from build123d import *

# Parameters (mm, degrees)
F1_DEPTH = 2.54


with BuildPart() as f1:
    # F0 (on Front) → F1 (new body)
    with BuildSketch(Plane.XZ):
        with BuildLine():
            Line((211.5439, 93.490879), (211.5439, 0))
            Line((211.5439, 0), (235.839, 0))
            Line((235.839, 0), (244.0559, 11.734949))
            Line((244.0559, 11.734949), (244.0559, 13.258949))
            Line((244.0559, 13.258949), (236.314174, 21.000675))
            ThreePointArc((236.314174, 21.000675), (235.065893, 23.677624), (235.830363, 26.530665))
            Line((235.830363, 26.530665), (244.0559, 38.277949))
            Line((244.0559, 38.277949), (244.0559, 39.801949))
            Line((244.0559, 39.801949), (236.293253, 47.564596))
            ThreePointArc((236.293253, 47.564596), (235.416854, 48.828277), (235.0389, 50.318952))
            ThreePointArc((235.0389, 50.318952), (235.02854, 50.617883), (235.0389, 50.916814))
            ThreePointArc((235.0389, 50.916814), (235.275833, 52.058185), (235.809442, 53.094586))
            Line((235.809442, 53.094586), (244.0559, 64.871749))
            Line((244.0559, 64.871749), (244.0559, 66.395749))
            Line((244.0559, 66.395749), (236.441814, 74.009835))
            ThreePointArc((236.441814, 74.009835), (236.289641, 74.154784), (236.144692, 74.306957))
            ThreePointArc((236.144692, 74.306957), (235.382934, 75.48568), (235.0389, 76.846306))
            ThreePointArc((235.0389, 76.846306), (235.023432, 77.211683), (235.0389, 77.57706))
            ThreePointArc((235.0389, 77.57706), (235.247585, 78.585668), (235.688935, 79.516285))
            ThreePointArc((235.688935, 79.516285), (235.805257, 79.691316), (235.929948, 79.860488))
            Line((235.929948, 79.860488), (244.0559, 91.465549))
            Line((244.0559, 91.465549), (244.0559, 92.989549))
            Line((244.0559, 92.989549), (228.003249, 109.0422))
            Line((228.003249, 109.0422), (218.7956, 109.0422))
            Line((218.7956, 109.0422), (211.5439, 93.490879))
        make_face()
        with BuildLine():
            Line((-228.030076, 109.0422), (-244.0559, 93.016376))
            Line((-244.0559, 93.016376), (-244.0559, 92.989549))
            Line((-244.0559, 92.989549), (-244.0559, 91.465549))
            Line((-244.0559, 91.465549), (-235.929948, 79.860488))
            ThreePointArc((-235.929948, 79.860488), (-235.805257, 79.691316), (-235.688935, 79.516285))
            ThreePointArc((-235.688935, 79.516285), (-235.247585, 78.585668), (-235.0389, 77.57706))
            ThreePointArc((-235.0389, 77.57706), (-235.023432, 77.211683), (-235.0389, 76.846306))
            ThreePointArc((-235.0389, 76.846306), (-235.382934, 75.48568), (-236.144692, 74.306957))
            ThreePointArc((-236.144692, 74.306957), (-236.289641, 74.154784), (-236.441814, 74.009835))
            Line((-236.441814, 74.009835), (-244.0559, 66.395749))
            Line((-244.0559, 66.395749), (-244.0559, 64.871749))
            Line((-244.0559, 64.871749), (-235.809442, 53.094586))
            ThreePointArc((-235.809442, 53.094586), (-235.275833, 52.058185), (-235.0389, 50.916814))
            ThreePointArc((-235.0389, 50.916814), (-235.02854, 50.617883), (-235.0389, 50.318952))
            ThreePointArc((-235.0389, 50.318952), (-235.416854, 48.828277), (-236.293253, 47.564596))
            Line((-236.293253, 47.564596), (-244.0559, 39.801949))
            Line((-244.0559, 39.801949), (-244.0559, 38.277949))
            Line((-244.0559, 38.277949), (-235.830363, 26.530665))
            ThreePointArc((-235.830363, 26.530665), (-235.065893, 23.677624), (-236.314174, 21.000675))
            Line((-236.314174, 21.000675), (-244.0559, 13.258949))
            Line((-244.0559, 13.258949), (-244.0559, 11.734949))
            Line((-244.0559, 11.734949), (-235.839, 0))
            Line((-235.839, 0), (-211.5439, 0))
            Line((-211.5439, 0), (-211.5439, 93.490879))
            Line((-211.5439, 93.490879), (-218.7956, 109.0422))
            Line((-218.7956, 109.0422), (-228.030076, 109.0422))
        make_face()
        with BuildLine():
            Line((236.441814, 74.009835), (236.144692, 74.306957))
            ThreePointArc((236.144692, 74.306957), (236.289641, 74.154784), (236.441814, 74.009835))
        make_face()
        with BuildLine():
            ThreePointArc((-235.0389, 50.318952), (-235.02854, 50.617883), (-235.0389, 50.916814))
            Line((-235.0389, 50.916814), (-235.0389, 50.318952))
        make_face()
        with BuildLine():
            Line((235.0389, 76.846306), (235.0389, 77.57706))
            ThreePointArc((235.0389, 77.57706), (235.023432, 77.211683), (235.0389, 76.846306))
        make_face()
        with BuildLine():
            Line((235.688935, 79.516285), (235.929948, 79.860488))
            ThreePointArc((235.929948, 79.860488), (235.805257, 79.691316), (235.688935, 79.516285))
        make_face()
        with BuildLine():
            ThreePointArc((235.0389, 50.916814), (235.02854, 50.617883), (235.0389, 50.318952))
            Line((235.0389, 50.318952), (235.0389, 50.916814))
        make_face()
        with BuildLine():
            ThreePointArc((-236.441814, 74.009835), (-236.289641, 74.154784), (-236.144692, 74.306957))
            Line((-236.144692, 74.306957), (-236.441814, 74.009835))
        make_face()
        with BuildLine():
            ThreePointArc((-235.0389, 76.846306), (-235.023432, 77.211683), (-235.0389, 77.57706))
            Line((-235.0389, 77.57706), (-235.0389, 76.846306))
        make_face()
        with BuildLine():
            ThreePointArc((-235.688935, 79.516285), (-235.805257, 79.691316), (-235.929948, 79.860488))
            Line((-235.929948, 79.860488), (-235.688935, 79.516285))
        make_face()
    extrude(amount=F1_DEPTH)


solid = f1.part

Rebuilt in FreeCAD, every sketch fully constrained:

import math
import FreeCAD as App
import Part
import Sketcher
from FreeCAD import Vector
Q = App.Units.Quantity

doc = App.newDocument("Part")
body = doc.addObject("PartDesign::Body", "Body")
body.AllowCompound = True

sketch1 = body.newObject("Sketcher::SketchObject", "Sketch")
sketch1.AttachmentSupport = (doc.getObject("XZ_Plane"), [""])
sketch1.MapMode = "FlatFace"
sketch1.addGeometry(Part.LineSegment(Vector(211.5439, 93.490879, 0), Vector(211.5439, 0, 0)), False)
sketch1.addGeometry(Part.LineSegment(Vector(211.5439, 0, 0), Vector(235.839, 0, 0)), False)
sketch1.addGeometry(Part.LineSegment(Vector(235.839, 0, 0), Vector(244.0559, 11.734949, 0)), False)
sketch1.addGeometry(Part.LineSegment(Vector(244.0559, 11.734949, 0), Vector(244.0559, 13.258949, 0)), False)
sketch1.addGeometry(Part.LineSegment(Vector(244.0559, 13.258949, 0), Vector(236.314174, 21.000675, 0)), False)
sketch1.addGeometry(Part.ArcOfCircle(Part.Circle(Vector(239.367463, 24.053962, 0), Vector(0, 0, 1), 4.318001), math.radians(145.000011), math.radians(224.999981)), False)
sketch1.addGeometry(Part.LineSegment(Vector(235.830363, 26.530665, 0), Vector(244.0559, 38.277949, 0)), False)
sketch1.addGeometry(Part.LineSegment(Vector(244.0559, 38.277949, 0), Vector(244.0559, 39.801949, 0)), False)
sketch1.addGeometry(Part.LineSegment(Vector(244.0559, 39.801949, 0), Vector(236.293253, 47.564596, 0)), False)
sketch1.addGeometry(Part.ArcOfCircle(Part.Circle(Vector(239.346542, 50.617884, 0), Vector(0, 0, 1), 4.318001), math.radians(-176.030287), math.radians(-135.000009)), False)
sketch1.addGeometry(Part.LineSegment(Vector(235.0389, 50.318952, 0), Vector(235.0389, 50.916814, 0)), False)
sketch1.addGeometry(Part.ArcOfCircle(Part.Circle(Vector(239.346527, 50.617887, 0), Vector(0, 0, 1), 4.317987), math.radians(144.999943), math.radians(176.030335)), False)
sketch1.addGeometry(Part.LineSegment(Vector(235.809442, 53.094586, 0), Vector(244.0559, 64.871749, 0)), False)
sketch1.addGeometry(Part.LineSegment(Vector(244.0559, 64.871749, 0), Vector(244.0559, 66.395749, 0)), False)
sketch1.addGeometry(Part.LineSegment(Vector(244.0559, 66.395749, 0), Vector(236.144692, 74.306957, 0)), False)
sketch1.addGeometry(Part.ArcOfCircle(Part.Circle(Vector(239.346549, 77.211687, 0), Vector(0, 0, 1), 4.323117), math.radians(-175.151699), math.radians(-137.785635)), False)
sketch1.addGeometry(Part.LineSegment(Vector(235.0389, 76.846306, 0), Vector(235.0389, 77.57706, 0)), False)
sketch1.addGeometry(Part.ArcOfCircle(Part.Circle(Vector(239.346528, 77.211688, 0), Vector(0, 0, 1), 4.323096), math.radians(147.785553), math.radians(175.151784)), False)
sketch1.addGeometry(Part.LineSegment(Vector(235.688935, 79.516285, 0), Vector(235.929948, 79.860488, 0)), False)
sketch1.addGeometry(Part.LineSegment(Vector(235.929948, 79.860488, 0), Vector(244.0559, 91.465549, 0)), False)
sketch1.addGeometry(Part.LineSegment(Vector(244.0559, 91.465549, 0), Vector(244.0559, 92.989549, 0)), False)
sketch1.addGeometry(Part.LineSegment(Vector(244.0559, 92.989549, 0), Vector(228.003249, 109.0422, 0)), False)
sketch1.addGeometry(Part.LineSegment(Vector(228.003249, 109.0422, 0), Vector(218.7956, 109.0422, 0)), False)
sketch1.addGeometry(Part.LineSegment(Vector(218.7956, 109.0422, 0), Vector(211.5439, 93.490879, 0)), False)
sketch1.addGeometry(Part.LineSegment(Vector(-228.030076, 109.0422, 0), Vector(-244.0559, 93.016376, 0)), False)
sketch1.addGeometry(Part.LineSegment(Vector(-244.0559, 93.016376, 0), Vector(-244.0559, 91.465549, 0)), False)
sketch1.addGeometry(Part.LineSegment(Vector(-244.0559, 91.465549, 0), Vector(-235.929948, 79.860488, 0)), False)
sketch1.addGeometry(Part.LineSegment(Vector(-235.929948, 79.860488, 0), Vector(-235.688935, 79.516285, 0)), False)
sketch1.addGeometry(Part.ArcOfCircle(Part.Circle(Vector(-239.346528, 77.211688, 0), Vector(0, 0, 1), 4.323096), math.radians(4.848216), math.radians(32.214447)), False)
sketch1.addGeometry(Part.LineSegment(Vector(-235.0389, 77.57706, 0), Vector(-235.0389, 76.846306, 0)), False)
sketch1.addGeometry(Part.ArcOfCircle(Part.Circle(Vector(-239.346549, 77.211687, 0), Vector(0, 0, 1), 4.323117), math.radians(-42.214365), math.radians(-4.848301)), False)
sketch1.addGeometry(Part.LineSegment(Vector(-236.144692, 74.306957, 0), Vector(-244.0559, 66.395749, 0)), False)
sketch1.addGeometry(Part.LineSegment(Vector(-244.0559, 66.395749, 0), Vector(-244.0559, 64.871749, 0)), False)
sketch1.addGeometry(Part.LineSegment(Vector(-244.0559, 64.871749, 0), Vector(-235.809442, 53.094586, 0)), False)
sketch1.addGeometry(Part.ArcOfCircle(Part.Circle(Vector(-239.346527, 50.617887, 0), Vector(0, 0, 1), 4.317987), math.radians(3.969665), math.radians(35.000057)), False)
sketch1.addGeometry(Part.LineSegment(Vector(-235.0389, 50.916814, 0), Vector(-235.0389, 50.318952, 0)), False)
sketch1.addGeometry(Part.ArcOfCircle(Part.Circle(Vector(-239.346542, 50.617884, 0), Vector(0, 0, 1), 4.318001), math.radians(-44.999991), math.radians(-3.969713)), False)
sketch1.addGeometry(Part.LineSegment(Vector(-236.293253, 47.564596, 0), Vector(-244.0559, 39.801949, 0)), False)
sketch1.addGeometry(Part.LineSegment(Vector(-244.0559, 39.801949, 0), Vector(-244.0559, 38.277949, 0)), False)
sketch1.addGeometry(Part.LineSegment(Vector(-244.0559, 38.277949, 0), Vector(-235.830363, 26.530665, 0)), False)
sketch1.addGeometry(Part.ArcOfCircle(Part.Circle(Vector(-239.367463, 24.053962, 0), Vector(0, 0, 1), 4.318001), math.radians(-44.999981), math.radians(34.999989)), False)
sketch1.addGeometry(Part.LineSegment(Vector(-236.314174, 21.000675, 0), Vector(-244.0559, 13.258949, 0)), False)
sketch1.addGeometry(Part.LineSegment(Vector(-244.0559, 13.258949, 0), Vector(-244.0559, 11.734949, 0)), False)
sketch1.addGeometry(Part.LineSegment(Vector(-244.0559, 11.734949, 0), Vector(-235.839, 0, 0)), False)
sketch1.addGeometry(Part.LineSegment(Vector(-235.839, 0, 0), Vector(-211.5439, 0, 0)), False)
sketch1.addGeometry(Part.LineSegment(Vector(-211.5439, 0, 0), Vector(-211.5439, 93.490879, 0)), False)
sketch1.addGeometry(Part.LineSegment(Vector(-211.5439, 93.490879, 0), Vector(-218.7956, 109.0422, 0)), False)
sketch1.addGeometry(Part.LineSegment(Vector(-218.7956, 109.0422, 0), Vector(-228.030076, 109.0422, 0)), False)
sketch1.addConstraint(Sketcher.Constraint("Coincident", 0, 2, 1, 1))
sketch1.addConstraint(Sketcher.Constraint("Coincident", 1, 2, 2, 1))
sketch1.addConstraint(Sketcher.Constraint("Coincident", 2, 2, 3, 1))
sketch1.addConstraint(Sketcher.Constraint("Coincident", 3, 2, 4, 1))
sketch1.addConstraint(Sketcher.Constraint("Tangent", 4, 2, 5, 2))
sketch1.addConstraint(Sketcher.Constraint("Tangent", 5, 1, 6, 1))
sketch1.addConstraint(Sketcher.Constraint("Coincident", 6, 2, 7, 1))
sketch1.addConstraint(Sketcher.Constraint("Coincident", 7, 2, 8, 1))
sketch1.addConstraint(Sketcher.Constraint("Tangent", 8, 2, 9, 2))
sketch1.addConstraint(Sketcher.Constraint("Coincident", 9, 1, 10, 1))
sketch1.addConstraint(Sketcher.Constraint("Coincident", 10, 2, 11, 2))
sketch1.addConstraint(Sketcher.Constraint("Tangent", 11, 1, 12, 1))
sketch1.addConstraint(Sketcher.Constraint("Coincident", 12, 2, 13, 1))
sketch1.addConstraint(Sketcher.Constraint("Coincident", 13, 2, 14, 1))
sketch1.addConstraint(Sketcher.Constraint("Coincident", 14, 2, 15, 2))
sketch1.addConstraint(Sketcher.Constraint("Coincident", 15, 1, 16, 1))
sketch1.addConstraint(Sketcher.Constraint("Coincident", 16, 2, 17, 2))
sketch1.addConstraint(Sketcher.Constraint("Coincident", 17, 1, 18, 1))
sketch1.addConstraint(Sketcher.Constraint("Coincident", 18, 2, 19, 1))
sketch1.addConstraint(Sketcher.Constraint("Coincident", 19, 2, 20, 1))
sketch1.addConstraint(Sketcher.Constraint("Coincident", 20, 2, 21, 1))
sketch1.addConstraint(Sketcher.Constraint("Coincident", 21, 2, 22, 1))
sketch1.addConstraint(Sketcher.Constraint("Coincident", 22, 2, 23, 1))
sketch1.addConstraint(Sketcher.Constraint("Coincident", 23, 2, 0, 1))
sketch1.addConstraint(Sketcher.Constraint("Coincident", 24, 2, 25, 1))
sketch1.addConstraint(Sketcher.Constraint("Coincident", 25, 2, 26, 1))
sketch1.addConstraint(Sketcher.Constraint("Coincident", 26, 2, 27, 1))
sketch1.addConstraint(Sketcher.Constraint("Coincident", 27, 2, 28, 2))
sketch1.addConstraint(Sketcher.Constraint("Coincident", 28, 1, 29, 1))
sketch1.addConstraint(Sketcher.Constraint("Coincident", 29, 2, 30, 2))
sketch1.addConstraint(Sketcher.Constraint("Coincident", 30, 1, 31, 1))
sketch1.addConstraint(Sketcher.Constraint("Coincident", 31, 2, 32, 1))
sketch1.addConstraint(Sketcher.Constraint("Coincident", 32, 2, 33, 1))
sketch1.addConstraint(Sketcher.Constraint("Tangent", 33, 2, 34, 2))
sketch1.addConstraint(Sketcher.Constraint("Coincident", 34, 1, 35, 1))
sketch1.addConstraint(Sketcher.Constraint("Coincident", 35, 2, 36, 2))
sketch1.addConstraint(Sketcher.Constraint("Tangent", 36, 1, 37, 1))
sketch1.addConstraint(Sketcher.Constraint("Coincident", 37, 2, 38, 1))
sketch1.addConstraint(Sketcher.Constraint("Coincident", 38, 2, 39, 1))
sketch1.addConstraint(Sketcher.Constraint("Tangent", 39, 2, 40, 2))
sketch1.addConstraint(Sketcher.Constraint("Tangent", 40, 1, 41, 1))
sketch1.addConstraint(Sketcher.Constraint("Coincident", 41, 2, 42, 1))
sketch1.addConstraint(Sketcher.Constraint("Coincident", 42, 2, 43, 1))
sketch1.addConstraint(Sketcher.Constraint("Coincident", 43, 2, 44, 1))
sketch1.addConstraint(Sketcher.Constraint("Coincident", 44, 2, 45, 1))
sketch1.addConstraint(Sketcher.Constraint("Coincident", 45, 2, 46, 1))
sketch1.addConstraint(Sketcher.Constraint("Coincident", 46, 2, 47, 1))
sketch1.addConstraint(Sketcher.Constraint("Coincident", 47, 2, 24, 1))
sketch1.addConstraint(Sketcher.Constraint("Vertical", 0))
sketch1.addConstraint(Sketcher.Constraint("Horizontal", 1))
sketch1.addConstraint(Sketcher.Constraint("Vertical", 3))
sketch1.addConstraint(Sketcher.Constraint("Vertical", 7))
sketch1.addConstraint(Sketcher.Constraint("Vertical", 10))
sketch1.addConstraint(Sketcher.Constraint("Vertical", 13))
sketch1.addConstraint(Sketcher.Constraint("Vertical", 16))
sketch1.addConstraint(Sketcher.Constraint("Vertical", 20))
sketch1.addConstraint(Sketcher.Constraint("Horizontal", 22))
sketch1.addConstraint(Sketcher.Constraint("Vertical", 25))
sketch1.addConstraint(Sketcher.Constraint("Vertical", 29))
sketch1.addConstraint(Sketcher.Constraint("Vertical", 32))
sketch1.addConstraint(Sketcher.Constraint("Vertical", 35))
sketch1.addConstraint(Sketcher.Constraint("Vertical", 38))
sketch1.addConstraint(Sketcher.Constraint("Vertical", 42))
sketch1.addConstraint(Sketcher.Constraint("Horizontal", 44))
sketch1.addConstraint(Sketcher.Constraint("Vertical", 45))
sketch1.addConstraint(Sketcher.Constraint("Horizontal", 47))
sketch1.addConstraint(Sketcher.Constraint("Equal", 5, 9))
sketch1.addConstraint(Sketcher.Constraint("Equal", 17, 28))
sketch1.addConstraint(Sketcher.Constraint("Equal", 15, 30))
sketch1.addConstraint(Sketcher.Constraint("Equal", 11, 34))
sketch1.addConstraint(Sketcher.Constraint("Equal", 9, 36))
sketch1.addConstraint(Sketcher.Constraint("Equal", 36, 40))
sketch1.addConstraint(Sketcher.Constraint("Symmetric", 1, 2, 43, 2, -1, 1))
sketch1.addConstraint(Sketcher.Constraint("Symmetric", 17, 3, 28, 3, -2))
sketch1.addConstraint(Sketcher.Constraint("Symmetric", 15, 3, 30, 3, -2))
sketch1.addConstraint(Sketcher.Constraint("Symmetric", 11, 3, 34, 3, -2))
sketch1.addConstraint(Sketcher.Constraint("Symmetric", 9, 3, 36, 3, -2))
sketch1.addConstraint(Sketcher.Constraint("Symmetric", 5, 3, 40, 3, -2))
sketch1.addConstraint(Sketcher.Constraint("Symmetric", 19, 2, 25, 2, -2))
sketch1.addConstraint(Sketcher.Constraint("Symmetric", 18, 2, 26, 2, -2))
sketch1.addConstraint(Sketcher.Constraint("Symmetric", 13, 2, 31, 2, -2))
sketch1.addConstraint(Sketcher.Constraint("Symmetric", 7, 2, 37, 2, -2))
sketch1.addConstraint(Sketcher.Constraint("Symmetric", 3, 2, 41, 2, -2))
sketch1.addConstraint(Sketcher.Constraint("Symmetric", 0, 2, 44, 2, -2))
sketch1.addConstraint(Sketcher.Constraint("Symmetric", 22, 2, 46, 2, -2))
sketch1.addConstraint(Sketcher.Constraint("Parallel", 2, 6))
sketch1.addConstraint(Sketcher.Constraint("Parallel", 4, 8))
sketch1.addConstraint(Sketcher.Constraint("Parallel", 6, 12))
sketch1.addConstraint(Sketcher.Constraint("Parallel", 8, 14))
sketch1.addConstraint(Sketcher.Constraint("Parallel", 12, 18))
sketch1.addConstraint(Sketcher.Constraint("Parallel", 18, 19))
sketch1.addConstraint(Sketcher.Constraint("Parallel", 14, 21))
sketch1.addConstraint(Sketcher.Constraint("Perpendicular", 21, 24))
sketch1.addConstraint(Sketcher.Constraint("Parallel", 26, 27))
sketch1.addConstraint(Sketcher.Constraint("Parallel", 24, 31))
sketch1.addConstraint(Sketcher.Constraint("Parallel", 27, 33))
sketch1.addConstraint(Sketcher.Constraint("Parallel", 31, 37))
sketch1.addConstraint(Sketcher.Constraint("Parallel", 33, 39))
sketch1.addConstraint(Sketcher.Constraint("Parallel", 39, 43))
sketch1.addConstraint(Sketcher.Constraint("Horizontal", 15, 3, 17, 3))
sketch1.addConstraint(Sketcher.Constraint("Horizontal", 16, 2, 28, 1))
sketch1.addConstraint(Sketcher.Constraint("Horizontal", 10, 2, 34, 1))
sketch1.addConstraint(Sketcher.Constraint("Horizontal", 23, 2, 45, 2))
sketch1.addConstraint(Sketcher.Constraint("Vertical", 11, 3, 17, 3))
sketch1.addConstraint(Sketcher.Constraint("Vertical", 3, 2, 6, 2))
sketch1.addConstraint(Sketcher.Constraint("Vertical", 7, 2, 12, 2))
sketch1.addConstraint(Sketcher.Constraint("Vertical", 10, 2, 15, 1))
sketch1.addConstraint(Sketcher.Constraint("Vertical", 13, 2, 19, 2))
sketch1.addConstraint(Sketcher.Constraint("Equal", 3, 7))
sketch1.addConstraint(Sketcher.Constraint("Equal", 7, 13))
sketch1.addConstraint(Sketcher.Constraint("Equal", 13, 20))
sketch1.addConstraint(Sketcher.Constraint("Radius", 5, Q("0.17 in")))
sketch1.addConstraint(Sketcher.Constraint("Angle", 2, Q("54.999999 deg")))
sketch1.addConstraint(Sketcher.Constraint("Angle", 23, Q("-115 deg")))
sketch1.addConstraint(Sketcher.Constraint("DistanceY", 3, 1, 3, 2, Q("0.06 in")))
sketch1.addConstraint(Sketcher.Constraint("DistanceX", 0, 2, 2, 2, Q("1.28 in")))
sketch1.addConstraint(Sketcher.Constraint("DistanceX", 1, 1, 1, 2, Q("0.9565 in")))
sketch1.addConstraint(Sketcher.Constraint("DistanceX", -1, 1, 1, 2, Q("9.285 in")))
sketch1.addConstraint(Sketcher.Constraint("DistanceY", -1, 1, 21, 2, Q("4.293 in")))
sketch1.addConstraint(Sketcher.Constraint("DistanceX", -1, 1, 22, 2, Q("8.614 in")))
sketch1.addConstraint(Sketcher.Constraint("DistanceY", 11, 3, 15, 3, Q("1.047 in")))
sketch1.addConstraint(Sketcher.Constraint("DistanceY", 9, 3, 15, 3, Q("1.0470001 in")))
sketch1.addConstraint(Sketcher.Constraint("DistanceX", 9, 1, 7, 2, Q("0.355 in")))
sketch1.addConstraint(Sketcher.Constraint("DistanceY", 41, 2, 38, 2, Q("0.985 in")))
sketch1.addConstraint(Sketcher.Constraint("Radius", 11, 4.317987))
sketch1.addConstraint(Sketcher.Constraint("Radius", 15, 4.323117))
sketch1.addConstraint(Sketcher.Constraint("Radius", 17, 4.323096))
sketch1.addConstraint(Sketcher.Constraint("DistanceX", 22, 2, 22, 1, 9.207649))
sketch1.addConstraint(Sketcher.Constraint("DistanceY", 10, 1, 10, 2, 0.597862))
sketch1.addConstraint(Sketcher.Constraint("DistanceX", 11, 1, 9, 3, 3.5371))
sketch1.addConstraint(Sketcher.Constraint("DistanceY", 17, 3, 18, 2, 2.6488))
sketch1.addConstraint(Sketcher.Constraint("DistanceX", 18, 2, 15, 3, 3.416601))
sketch1.addConstraint(Sketcher.Constraint("DistanceX", 47, 2, 47, 1, 9.234476))
pad1 = body.newObject("PartDesign::Pad", "Pad")
pad1.Profile = sketch1
pad1.Length = Q("0.1 in")

doc.recompute()
